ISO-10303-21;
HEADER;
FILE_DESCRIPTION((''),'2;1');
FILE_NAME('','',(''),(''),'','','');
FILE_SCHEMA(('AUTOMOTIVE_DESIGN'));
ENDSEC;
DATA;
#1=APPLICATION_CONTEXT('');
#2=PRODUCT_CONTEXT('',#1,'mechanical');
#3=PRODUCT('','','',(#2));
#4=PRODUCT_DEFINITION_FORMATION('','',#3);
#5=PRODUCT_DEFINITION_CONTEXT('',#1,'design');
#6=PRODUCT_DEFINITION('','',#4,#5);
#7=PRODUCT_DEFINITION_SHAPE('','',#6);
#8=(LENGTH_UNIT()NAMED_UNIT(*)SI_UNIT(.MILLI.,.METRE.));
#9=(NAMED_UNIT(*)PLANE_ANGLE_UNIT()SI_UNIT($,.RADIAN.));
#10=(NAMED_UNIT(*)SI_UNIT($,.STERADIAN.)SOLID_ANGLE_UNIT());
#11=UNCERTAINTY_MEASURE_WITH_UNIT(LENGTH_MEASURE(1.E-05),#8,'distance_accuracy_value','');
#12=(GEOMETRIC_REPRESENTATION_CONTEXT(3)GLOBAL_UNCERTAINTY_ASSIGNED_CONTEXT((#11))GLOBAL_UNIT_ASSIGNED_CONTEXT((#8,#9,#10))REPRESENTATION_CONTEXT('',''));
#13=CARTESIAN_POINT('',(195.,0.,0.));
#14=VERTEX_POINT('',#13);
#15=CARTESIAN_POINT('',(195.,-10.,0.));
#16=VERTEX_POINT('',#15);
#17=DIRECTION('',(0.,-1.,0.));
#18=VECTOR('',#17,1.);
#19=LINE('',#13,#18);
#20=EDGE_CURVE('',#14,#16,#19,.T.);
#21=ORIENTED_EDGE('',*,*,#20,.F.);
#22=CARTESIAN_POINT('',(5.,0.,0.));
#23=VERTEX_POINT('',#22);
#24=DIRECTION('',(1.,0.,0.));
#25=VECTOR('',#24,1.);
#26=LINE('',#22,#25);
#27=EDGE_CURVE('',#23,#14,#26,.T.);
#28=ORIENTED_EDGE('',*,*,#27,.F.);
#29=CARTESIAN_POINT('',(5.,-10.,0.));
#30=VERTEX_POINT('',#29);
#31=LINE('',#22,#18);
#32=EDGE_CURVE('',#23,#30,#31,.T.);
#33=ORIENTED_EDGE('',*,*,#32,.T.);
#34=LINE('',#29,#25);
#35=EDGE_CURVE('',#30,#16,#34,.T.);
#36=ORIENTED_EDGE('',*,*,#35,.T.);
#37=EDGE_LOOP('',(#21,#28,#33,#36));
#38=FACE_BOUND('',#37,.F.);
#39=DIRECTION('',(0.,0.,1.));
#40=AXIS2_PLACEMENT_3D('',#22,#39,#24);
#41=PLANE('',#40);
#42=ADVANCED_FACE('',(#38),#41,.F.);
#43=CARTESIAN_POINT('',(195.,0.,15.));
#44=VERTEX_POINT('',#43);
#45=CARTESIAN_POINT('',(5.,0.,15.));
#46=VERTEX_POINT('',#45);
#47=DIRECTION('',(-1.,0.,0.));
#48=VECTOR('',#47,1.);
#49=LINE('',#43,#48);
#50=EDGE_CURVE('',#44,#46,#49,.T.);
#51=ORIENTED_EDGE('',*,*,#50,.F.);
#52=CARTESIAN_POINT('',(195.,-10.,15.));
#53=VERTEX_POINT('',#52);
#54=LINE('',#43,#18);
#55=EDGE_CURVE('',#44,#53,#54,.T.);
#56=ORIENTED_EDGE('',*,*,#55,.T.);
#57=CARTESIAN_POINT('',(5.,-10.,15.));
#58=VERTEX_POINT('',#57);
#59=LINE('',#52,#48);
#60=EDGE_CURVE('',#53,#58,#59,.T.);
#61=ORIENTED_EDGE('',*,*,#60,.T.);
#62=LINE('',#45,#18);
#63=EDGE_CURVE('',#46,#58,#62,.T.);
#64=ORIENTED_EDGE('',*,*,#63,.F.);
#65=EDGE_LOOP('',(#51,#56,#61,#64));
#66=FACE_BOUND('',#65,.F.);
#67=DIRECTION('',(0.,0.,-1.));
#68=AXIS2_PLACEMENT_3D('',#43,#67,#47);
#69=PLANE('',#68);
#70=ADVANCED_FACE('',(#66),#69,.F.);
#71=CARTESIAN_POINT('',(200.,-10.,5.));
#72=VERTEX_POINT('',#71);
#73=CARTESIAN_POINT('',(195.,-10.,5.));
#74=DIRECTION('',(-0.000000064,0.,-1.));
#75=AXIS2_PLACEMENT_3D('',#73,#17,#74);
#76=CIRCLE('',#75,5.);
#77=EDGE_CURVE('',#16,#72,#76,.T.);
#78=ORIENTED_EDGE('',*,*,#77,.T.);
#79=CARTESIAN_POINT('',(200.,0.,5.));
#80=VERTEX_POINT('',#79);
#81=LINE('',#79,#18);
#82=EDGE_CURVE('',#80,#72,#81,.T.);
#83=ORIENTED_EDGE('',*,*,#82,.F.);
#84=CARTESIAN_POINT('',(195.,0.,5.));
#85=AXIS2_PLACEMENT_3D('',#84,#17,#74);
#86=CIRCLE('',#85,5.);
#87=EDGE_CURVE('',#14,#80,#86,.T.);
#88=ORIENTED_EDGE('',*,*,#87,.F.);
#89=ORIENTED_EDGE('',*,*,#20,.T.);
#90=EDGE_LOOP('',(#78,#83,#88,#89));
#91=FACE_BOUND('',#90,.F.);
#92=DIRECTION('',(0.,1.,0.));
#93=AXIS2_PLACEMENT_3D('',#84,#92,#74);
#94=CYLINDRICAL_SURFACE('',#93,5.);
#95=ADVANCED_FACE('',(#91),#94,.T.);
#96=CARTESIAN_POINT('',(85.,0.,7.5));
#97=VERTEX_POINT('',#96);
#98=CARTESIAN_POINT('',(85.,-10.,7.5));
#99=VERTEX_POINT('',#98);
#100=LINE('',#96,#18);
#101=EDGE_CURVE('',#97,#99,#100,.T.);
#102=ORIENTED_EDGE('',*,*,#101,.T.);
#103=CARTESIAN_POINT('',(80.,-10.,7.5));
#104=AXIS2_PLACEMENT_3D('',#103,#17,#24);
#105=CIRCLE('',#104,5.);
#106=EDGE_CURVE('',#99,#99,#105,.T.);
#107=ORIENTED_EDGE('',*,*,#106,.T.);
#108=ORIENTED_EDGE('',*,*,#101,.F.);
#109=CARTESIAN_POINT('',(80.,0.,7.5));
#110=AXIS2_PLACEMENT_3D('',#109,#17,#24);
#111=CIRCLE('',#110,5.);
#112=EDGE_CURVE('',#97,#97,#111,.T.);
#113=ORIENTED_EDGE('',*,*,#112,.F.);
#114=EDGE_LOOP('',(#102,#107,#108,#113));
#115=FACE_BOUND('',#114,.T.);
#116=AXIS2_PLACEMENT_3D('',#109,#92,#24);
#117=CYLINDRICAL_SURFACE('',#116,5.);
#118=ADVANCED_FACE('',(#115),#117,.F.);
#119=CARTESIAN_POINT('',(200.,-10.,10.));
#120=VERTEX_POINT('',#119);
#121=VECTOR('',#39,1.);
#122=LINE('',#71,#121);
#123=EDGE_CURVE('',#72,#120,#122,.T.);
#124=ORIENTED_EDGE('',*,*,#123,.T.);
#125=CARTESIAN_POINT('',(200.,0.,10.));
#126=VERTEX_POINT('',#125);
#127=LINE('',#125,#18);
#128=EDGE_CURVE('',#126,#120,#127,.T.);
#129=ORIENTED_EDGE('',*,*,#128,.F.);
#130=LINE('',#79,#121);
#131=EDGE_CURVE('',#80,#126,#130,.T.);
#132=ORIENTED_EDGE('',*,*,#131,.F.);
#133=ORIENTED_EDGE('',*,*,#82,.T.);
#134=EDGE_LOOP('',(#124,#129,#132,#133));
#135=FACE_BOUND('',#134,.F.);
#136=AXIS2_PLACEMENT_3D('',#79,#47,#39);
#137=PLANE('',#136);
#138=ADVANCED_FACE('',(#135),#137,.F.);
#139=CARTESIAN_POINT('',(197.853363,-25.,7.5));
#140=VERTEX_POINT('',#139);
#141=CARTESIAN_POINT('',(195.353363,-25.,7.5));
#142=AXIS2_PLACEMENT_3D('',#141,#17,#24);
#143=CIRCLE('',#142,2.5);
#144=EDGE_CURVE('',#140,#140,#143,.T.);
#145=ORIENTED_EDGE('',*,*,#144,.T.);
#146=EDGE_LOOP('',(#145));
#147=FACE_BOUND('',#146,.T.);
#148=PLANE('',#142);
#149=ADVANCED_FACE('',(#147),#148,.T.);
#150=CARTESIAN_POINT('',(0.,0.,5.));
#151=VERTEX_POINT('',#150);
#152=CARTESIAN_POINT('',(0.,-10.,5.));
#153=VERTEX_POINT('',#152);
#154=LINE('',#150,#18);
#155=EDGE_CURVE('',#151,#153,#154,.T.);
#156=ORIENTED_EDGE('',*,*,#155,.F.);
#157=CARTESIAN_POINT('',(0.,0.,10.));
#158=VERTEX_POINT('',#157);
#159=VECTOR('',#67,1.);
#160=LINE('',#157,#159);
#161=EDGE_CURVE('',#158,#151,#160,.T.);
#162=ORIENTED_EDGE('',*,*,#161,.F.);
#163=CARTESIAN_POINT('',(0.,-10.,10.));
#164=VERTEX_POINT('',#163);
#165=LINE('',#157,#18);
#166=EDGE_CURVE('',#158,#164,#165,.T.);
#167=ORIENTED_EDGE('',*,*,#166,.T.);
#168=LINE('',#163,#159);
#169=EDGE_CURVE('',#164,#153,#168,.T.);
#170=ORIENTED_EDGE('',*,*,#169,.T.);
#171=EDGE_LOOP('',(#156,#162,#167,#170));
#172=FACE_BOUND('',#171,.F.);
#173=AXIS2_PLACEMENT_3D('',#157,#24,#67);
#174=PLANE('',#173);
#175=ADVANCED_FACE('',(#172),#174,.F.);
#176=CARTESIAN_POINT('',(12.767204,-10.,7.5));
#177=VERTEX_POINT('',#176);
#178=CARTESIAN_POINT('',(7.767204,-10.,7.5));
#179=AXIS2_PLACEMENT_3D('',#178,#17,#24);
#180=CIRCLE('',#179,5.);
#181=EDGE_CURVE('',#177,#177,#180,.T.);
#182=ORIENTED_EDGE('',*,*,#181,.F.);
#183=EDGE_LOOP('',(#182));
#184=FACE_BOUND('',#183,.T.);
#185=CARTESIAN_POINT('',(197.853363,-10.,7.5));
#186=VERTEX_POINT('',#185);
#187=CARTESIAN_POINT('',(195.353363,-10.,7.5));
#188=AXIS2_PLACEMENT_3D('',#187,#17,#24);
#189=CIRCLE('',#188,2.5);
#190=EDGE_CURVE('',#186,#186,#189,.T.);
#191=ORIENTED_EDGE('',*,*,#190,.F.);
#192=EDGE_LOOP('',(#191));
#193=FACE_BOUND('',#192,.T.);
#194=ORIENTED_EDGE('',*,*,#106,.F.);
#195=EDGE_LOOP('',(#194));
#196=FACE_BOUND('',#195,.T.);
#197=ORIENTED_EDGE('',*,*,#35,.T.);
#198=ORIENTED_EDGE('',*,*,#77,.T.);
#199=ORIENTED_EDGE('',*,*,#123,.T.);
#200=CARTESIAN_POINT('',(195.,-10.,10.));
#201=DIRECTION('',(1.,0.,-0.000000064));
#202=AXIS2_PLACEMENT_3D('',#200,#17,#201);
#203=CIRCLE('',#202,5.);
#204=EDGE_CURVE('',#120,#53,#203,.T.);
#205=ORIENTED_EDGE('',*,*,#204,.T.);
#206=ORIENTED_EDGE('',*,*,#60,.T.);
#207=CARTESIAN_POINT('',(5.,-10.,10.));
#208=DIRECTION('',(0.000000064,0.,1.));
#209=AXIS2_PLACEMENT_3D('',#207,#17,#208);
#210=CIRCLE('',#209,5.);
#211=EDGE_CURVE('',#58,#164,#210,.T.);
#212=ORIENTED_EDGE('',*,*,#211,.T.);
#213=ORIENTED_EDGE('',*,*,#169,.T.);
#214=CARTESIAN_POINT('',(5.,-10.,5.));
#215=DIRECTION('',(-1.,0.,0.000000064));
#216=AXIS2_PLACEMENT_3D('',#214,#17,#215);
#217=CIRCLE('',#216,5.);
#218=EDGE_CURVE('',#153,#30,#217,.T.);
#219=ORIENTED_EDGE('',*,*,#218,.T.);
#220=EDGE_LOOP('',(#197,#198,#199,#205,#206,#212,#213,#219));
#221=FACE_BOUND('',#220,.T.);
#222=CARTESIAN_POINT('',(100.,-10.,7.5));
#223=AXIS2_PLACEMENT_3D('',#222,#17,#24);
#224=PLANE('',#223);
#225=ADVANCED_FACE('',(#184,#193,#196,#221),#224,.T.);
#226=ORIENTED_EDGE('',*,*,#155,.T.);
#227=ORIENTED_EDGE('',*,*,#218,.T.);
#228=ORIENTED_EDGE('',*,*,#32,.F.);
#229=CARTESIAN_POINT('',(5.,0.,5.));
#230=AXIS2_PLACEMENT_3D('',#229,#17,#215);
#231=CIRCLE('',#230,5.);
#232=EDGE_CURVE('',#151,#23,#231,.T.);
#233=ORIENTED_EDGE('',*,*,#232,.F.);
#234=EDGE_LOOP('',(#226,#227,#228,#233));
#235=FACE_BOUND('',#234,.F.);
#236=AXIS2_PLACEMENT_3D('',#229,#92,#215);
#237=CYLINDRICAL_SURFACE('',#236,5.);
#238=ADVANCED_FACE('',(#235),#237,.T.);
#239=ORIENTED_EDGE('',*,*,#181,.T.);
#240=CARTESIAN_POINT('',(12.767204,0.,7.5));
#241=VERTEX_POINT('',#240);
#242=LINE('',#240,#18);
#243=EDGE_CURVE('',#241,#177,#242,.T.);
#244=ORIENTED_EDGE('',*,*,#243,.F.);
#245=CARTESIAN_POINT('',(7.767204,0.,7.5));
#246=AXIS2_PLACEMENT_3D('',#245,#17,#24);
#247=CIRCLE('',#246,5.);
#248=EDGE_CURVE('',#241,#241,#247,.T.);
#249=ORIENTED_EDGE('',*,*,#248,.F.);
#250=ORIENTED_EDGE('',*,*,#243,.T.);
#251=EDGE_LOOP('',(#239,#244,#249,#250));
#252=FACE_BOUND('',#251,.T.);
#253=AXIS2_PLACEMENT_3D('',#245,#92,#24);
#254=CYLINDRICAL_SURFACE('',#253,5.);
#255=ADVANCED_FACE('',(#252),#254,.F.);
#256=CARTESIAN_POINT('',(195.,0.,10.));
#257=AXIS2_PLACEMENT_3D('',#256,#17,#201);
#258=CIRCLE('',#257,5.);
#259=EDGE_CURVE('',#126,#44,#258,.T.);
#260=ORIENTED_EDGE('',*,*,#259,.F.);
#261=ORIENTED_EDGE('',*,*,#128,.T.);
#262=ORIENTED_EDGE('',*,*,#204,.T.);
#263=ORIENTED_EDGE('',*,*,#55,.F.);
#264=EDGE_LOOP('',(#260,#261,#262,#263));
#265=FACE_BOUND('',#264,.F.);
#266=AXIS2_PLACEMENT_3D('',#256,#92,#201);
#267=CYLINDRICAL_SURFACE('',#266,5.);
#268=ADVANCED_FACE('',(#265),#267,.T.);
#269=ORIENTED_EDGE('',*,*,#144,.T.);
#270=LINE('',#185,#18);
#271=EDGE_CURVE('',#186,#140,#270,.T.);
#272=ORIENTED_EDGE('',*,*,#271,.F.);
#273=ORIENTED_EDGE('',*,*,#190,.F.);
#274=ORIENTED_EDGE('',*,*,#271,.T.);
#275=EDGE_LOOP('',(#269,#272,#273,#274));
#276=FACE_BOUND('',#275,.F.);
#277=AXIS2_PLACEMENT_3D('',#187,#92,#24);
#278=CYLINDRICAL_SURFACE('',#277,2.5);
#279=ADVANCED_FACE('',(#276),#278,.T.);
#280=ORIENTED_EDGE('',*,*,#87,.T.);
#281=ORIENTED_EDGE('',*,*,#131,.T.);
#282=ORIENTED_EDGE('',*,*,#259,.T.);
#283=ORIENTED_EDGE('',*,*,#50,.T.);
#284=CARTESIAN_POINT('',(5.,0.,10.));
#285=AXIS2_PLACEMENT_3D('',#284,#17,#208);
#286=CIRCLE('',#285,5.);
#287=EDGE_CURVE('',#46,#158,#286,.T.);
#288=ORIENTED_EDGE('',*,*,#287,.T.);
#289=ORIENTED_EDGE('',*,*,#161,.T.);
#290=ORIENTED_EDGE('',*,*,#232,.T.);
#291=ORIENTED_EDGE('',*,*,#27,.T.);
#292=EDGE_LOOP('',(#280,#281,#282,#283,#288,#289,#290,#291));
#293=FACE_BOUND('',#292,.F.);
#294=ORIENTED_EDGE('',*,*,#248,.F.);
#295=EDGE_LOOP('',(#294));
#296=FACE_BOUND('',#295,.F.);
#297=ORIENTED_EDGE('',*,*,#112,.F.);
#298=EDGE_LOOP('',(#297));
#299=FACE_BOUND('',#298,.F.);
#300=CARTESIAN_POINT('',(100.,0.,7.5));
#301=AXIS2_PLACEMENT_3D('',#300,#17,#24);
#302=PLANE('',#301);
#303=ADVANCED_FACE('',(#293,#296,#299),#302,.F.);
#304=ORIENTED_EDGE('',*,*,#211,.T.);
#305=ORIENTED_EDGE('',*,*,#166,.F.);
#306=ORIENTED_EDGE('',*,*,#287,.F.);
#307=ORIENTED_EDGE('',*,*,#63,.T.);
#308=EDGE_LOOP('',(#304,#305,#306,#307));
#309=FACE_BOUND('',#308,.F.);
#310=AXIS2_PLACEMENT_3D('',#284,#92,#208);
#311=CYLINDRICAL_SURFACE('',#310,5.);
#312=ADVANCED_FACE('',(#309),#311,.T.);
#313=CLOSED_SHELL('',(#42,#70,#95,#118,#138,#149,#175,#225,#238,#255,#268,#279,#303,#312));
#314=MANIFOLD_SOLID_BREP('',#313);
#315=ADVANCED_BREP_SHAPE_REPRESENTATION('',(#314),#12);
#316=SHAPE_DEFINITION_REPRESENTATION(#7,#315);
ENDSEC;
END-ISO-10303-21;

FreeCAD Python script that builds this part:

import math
import FreeCAD as App
import Part
import Sketcher
from FreeCAD import Vector

doc = App.newDocument("Part")
body = doc.addObject("PartDesign::Body", "Body")

sketch1 = body.newObject("Sketcher::SketchObject", "Sketch")
sketch1.AttachmentSupport = (doc.getObject("XZ_Plane"), [""])
sketch1.MapMode = "FlatFace"
sketch1.addGeometry([
    Part.ArcOfCircle(Part.Circle(Vector(5, 5, 0), Vector(0, 0, 1), 5), math.radians(180), math.radians(270)),
    Part.LineSegment(Vector(5, 0, 0), Vector(195, 0, 0)),
    Part.ArcOfCircle(Part.Circle(Vector(195, 5, 0), Vector(0, 0, 1), 5), math.radians(-90), math.radians(0)),
    Part.LineSegment(Vector(200, 5, 0), Vector(200, 10, 0)),
    Part.ArcOfCircle(Part.Circle(Vector(195, 10, 0), Vector(0, 0, 1), 5), math.radians(0), math.radians(90)),
    Part.LineSegment(Vector(195, 15, 0), Vector(5, 15, 0)),
    Part.ArcOfCircle(Part.Circle(Vector(5, 10, 0), Vector(0, 0, 1), 5), math.radians(90), math.radians(180)),
    Part.LineSegment(Vector(0, 10, 0), Vector(0, 5, 0)),
    Part.Circle(Vector(7.8, 7.5, 0), Vector(0, 0, 1), 5),
    Part.Circle(Vector(80, 7.5, 0), Vector(0, 0, 1), 5),
], False)
sketch1.addConstraint([
    Sketcher.Constraint("Tangent", 0, 2, 1, 1),
    Sketcher.Constraint("Tangent", 1, 2, 2, 1),
    Sketcher.Constraint("Tangent", 2, 2, 3, 1),
    Sketcher.Constraint("Tangent", 3, 2, 4, 1),
    Sketcher.Constraint("Tangent", 4, 2, 5, 1),
    Sketcher.Constraint("Tangent", 5, 2, 6, 1),
    Sketcher.Constraint("Tangent", 6, 2, 7, 1),
    Sketcher.Constraint("Tangent", 7, 2, 0, 1),
    Sketcher.Constraint("Horizontal", 1),
    Sketcher.Constraint("Vertical", 3),
    Sketcher.Constraint("Horizontal", 5),
    Sketcher.Constraint("Vertical", 7),
    Sketcher.Constraint("Equal", 0, 2),
    Sketcher.Constraint("Equal", 2, 4),
    Sketcher.Constraint("Equal", 4, 6),
    Sketcher.Constraint("Equal", 6, 8),
    Sketcher.Constraint("Equal", 8, 9),
    Sketcher.Constraint("PointOnObject", 0, 2, -1),
    Sketcher.Constraint("PointOnObject", 6, 2, -2),
    Sketcher.Constraint("Horizontal", 8, 3, 9, 3),
    Sketcher.Constraint("Diameter", 8, 10.0),
    Sketcher.Constraint("DistanceX", 1, 1, 1, 2, 190.0),
    Sketcher.Constraint("DistanceY", 3, 1, 3, 2, 5.0),
    Sketcher.Constraint("DistanceX", -1, 1, 9, 3, 80.0),
    Sketcher.Constraint("DistanceY", -1, 1, 8, 3, 7.5),
    Sketcher.Constraint("DistanceX", -1, 1, 8, 3, 7.767204),
])
pad1 = body.newObject("PartDesign::Pad", "Pad")
pad1.Profile = sketch1
pad1.Length = 10

sketch2 = body.newObject("Sketcher::SketchObject", "Sketch001")
sketch2.AttachmentSupport = (doc.getObject("XZ_Plane"), [""])
sketch2.MapMode = "FlatFace"
sketch2.AttachmentOffset = App.Placement(Vector(0, 0, 10), App.Rotation())
sketch2.addGeometry(Part.Circle(Vector(195.4, 7.5, 0), Vector(0, 0, 1), 2.5), False)
sketch2.addConstraint([
    Sketcher.Constraint("Diameter", 0, 5.0),
    Sketcher.Constraint("DistanceY", -1, 1, 0, 3, 7.5),
    Sketcher.Constraint("DistanceX", -1, 1, 0, 3, 195.353363),
])
pad2 = body.newObject("PartDesign::Pad", "Pad001")
pad2.Profile = sketch2
pad2.Length = 15

doc.recompute()
